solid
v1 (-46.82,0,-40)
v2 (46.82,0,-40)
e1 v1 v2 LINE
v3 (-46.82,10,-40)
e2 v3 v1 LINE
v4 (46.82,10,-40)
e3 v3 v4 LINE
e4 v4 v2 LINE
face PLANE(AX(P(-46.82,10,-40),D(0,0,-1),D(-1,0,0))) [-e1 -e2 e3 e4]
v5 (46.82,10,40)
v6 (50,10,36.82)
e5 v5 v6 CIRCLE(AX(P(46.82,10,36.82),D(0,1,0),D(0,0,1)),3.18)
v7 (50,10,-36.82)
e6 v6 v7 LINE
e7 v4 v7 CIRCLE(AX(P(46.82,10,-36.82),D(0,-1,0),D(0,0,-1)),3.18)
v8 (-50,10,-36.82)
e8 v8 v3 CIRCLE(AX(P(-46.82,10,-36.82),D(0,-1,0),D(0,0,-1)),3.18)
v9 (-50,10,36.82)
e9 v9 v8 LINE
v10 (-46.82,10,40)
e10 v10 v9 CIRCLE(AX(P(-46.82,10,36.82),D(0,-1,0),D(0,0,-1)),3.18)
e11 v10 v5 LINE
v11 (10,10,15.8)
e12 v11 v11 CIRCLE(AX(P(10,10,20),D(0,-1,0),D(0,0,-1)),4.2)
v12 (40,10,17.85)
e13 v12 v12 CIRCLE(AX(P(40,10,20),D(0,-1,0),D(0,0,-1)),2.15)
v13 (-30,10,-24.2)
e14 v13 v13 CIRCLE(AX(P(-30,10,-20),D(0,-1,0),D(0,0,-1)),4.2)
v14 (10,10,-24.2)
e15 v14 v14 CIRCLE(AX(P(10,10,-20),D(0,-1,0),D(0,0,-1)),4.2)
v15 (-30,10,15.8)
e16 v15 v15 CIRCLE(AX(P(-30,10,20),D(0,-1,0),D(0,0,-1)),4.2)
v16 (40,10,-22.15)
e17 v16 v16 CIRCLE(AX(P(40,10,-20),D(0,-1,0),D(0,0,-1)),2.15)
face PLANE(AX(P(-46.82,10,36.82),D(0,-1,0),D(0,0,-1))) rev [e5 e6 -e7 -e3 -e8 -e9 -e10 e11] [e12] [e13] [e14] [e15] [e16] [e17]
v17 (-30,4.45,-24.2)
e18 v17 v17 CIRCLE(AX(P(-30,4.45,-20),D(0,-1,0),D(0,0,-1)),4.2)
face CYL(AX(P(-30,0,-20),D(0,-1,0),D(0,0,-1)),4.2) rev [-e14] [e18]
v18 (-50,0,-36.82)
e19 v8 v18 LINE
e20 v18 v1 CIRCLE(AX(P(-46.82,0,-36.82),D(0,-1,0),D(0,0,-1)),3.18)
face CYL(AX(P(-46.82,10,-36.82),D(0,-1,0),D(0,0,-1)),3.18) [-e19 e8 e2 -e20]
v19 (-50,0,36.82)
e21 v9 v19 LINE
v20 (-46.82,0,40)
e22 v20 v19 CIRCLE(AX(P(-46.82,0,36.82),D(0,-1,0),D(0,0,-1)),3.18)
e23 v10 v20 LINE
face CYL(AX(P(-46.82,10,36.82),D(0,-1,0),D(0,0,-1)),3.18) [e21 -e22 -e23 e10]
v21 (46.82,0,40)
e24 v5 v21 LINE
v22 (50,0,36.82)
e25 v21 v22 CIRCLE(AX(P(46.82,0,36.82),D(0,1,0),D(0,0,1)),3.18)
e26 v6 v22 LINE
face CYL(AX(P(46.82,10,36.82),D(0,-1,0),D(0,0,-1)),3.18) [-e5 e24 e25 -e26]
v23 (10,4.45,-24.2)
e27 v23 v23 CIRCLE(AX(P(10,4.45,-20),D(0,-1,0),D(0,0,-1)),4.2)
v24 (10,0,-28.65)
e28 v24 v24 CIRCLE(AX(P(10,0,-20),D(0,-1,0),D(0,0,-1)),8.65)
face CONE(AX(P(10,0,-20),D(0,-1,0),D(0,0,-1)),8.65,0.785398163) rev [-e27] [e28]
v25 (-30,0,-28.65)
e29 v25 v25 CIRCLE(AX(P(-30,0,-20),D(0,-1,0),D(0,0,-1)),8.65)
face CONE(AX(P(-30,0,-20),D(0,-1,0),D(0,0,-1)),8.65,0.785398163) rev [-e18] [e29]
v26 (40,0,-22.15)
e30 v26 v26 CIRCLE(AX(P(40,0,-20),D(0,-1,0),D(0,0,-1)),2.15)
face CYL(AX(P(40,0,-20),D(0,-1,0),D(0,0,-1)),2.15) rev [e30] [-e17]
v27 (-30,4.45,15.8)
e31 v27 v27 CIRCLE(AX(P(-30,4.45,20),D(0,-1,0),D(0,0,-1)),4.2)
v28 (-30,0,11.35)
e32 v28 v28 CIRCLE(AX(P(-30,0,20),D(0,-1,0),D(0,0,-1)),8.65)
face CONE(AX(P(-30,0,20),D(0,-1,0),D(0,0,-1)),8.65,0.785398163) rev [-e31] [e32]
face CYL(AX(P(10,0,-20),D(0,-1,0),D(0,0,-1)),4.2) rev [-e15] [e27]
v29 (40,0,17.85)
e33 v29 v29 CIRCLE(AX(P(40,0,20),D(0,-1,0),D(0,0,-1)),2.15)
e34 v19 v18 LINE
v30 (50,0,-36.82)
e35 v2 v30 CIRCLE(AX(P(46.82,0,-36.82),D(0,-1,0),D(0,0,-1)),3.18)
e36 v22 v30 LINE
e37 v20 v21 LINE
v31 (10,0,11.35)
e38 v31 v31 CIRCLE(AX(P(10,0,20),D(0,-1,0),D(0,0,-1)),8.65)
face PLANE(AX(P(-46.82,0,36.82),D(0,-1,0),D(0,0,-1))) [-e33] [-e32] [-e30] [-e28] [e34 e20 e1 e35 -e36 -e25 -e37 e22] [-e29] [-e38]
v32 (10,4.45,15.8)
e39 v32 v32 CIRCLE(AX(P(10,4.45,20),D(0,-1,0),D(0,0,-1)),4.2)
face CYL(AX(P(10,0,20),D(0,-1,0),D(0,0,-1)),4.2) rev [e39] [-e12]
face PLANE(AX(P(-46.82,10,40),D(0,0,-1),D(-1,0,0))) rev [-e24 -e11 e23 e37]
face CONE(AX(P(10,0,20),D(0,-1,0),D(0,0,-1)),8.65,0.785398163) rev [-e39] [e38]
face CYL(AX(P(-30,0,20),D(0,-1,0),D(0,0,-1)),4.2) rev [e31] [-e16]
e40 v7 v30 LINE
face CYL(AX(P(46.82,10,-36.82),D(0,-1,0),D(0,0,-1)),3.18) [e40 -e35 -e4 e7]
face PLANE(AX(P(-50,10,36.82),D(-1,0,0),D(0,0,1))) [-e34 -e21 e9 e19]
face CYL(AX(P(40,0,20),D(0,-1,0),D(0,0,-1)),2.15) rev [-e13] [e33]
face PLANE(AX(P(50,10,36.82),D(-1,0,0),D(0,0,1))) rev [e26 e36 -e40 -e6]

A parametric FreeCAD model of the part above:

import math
import FreeCAD as App
import Part
import Sketcher

V = App.Vector

doc = App.newDocument("Part")
params = doc.addObject("Spreadsheet::Sheet", "Params")
for row, (alias, value) in enumerate([
    ("sketch1_radius", "3.18 mm"),
    ("pad1_length", "10 mm"),
    ("sketch2_diameter", "8.4 mm"),
    ("hole_diameter", "8.4 mm"),
    ("hole_csink_diameter", "17.3 mm"),
    ("sketch3_diameter", "4.3 mm"),
    ("hole2_diameter", "4.3 mm"),
], start=1):
    params.set(f"A{row}", alias)
    params.set(f"B{row}", "=" + value)
    params.setAlias(f"B{row}", alias)

body = doc.addObject("PartDesign::Body", "Body")

# Sketch on XZ plane
sketch1 = body.newObject("Sketcher::SketchObject", "Sketch")
sketch1.AttachmentSupport = (doc.getObject("XZ_Plane"), [""])
sketch1.MapMode = "FlatFace"
sketch1.addGeometry([
    Part.LineSegment(V(-46.8, 40, 0), V(46.8, 40, 0)),  # 0
    Part.ArcOfCircle(Part.Circle(V(46.8, 36.8, 0), V(0, 0, 1), 3.2), math.radians(0), math.radians(90)),  # 1
    Part.LineSegment(V(50, 36.8, 0), V(50, -36.8, 0)),  # 2
    Part.ArcOfCircle(Part.Circle(V(46.8, -36.8, 0), V(0, 0, 1), 3.2), math.radians(-90), math.radians(0)),  # 3
    Part.LineSegment(V(46.8, -40, 0), V(-46.8, -40, 0)),  # 4
    Part.ArcOfCircle(Part.Circle(V(-46.8, -36.8, 0), V(0, 0, 1), 3.2), math.radians(-180), math.radians(-90)),  # 5
    Part.LineSegment(V(-50, -36.8, 0), V(-50, 36.8, 0)),  # 6
    Part.ArcOfCircle(Part.Circle(V(-46.8, 36.8, 0), V(0, 0, 1), 3.2), math.radians(90), math.radians(180)),  # 7
], False)
sketch1.addConstraint([
    Sketcher.Constraint("Tangent", 0, 2, 1, 2),
    Sketcher.Constraint("Tangent", 1, 1, 2, 1),
    Sketcher.Constraint("Tangent", 2, 2, 3, 2),
    Sketcher.Constraint("Tangent", 3, 1, 4, 1),
    Sketcher.Constraint("Tangent", 4, 2, 5, 2),
    Sketcher.Constraint("Tangent", 5, 1, 6, 1),
    Sketcher.Constraint("Tangent", 6, 2, 7, 2),
    Sketcher.Constraint("Tangent", 7, 1, 0, 1),
    Sketcher.Constraint("Horizontal", 0),
    Sketcher.Constraint("Vertical", 2),
    Sketcher.Constraint("Horizontal", 4),
    Sketcher.Constraint("Vertical", 6),
    Sketcher.Constraint("Equal", 1, 3),
    Sketcher.Constraint("Equal", 3, 5),
    Sketcher.Constraint("Equal", 5, 7),
    Sketcher.Constraint("Symmetric", 1, 3, 5, 3, -1, 1),
    Sketcher.Constraint("Radius", 1, 3.18),
    Sketcher.Constraint("DistanceY", -1, 1, 0, 2, 40.0),
    Sketcher.Constraint("DistanceX", -1, 1, 1, 1, 50.0),
])
sketch1.setExpression("Constraints[16]", "Params.sketch1_radius")
pad1 = body.newObject("PartDesign::Pad", "Pad")
pad1.Profile = sketch1
pad1.setExpression("Length", "Params.pad1_length")
pad1.Reversed = True

# Sketch on XZ plane
sketch2 = body.newObject("Sketcher::SketchObject", "Sketch001")
sketch2.AttachmentSupport = (doc.getObject("XZ_Plane"), [""])
sketch2.MapMode = "FlatFace"
sketch2.addGeometry([
    Part.Circle(V(10, -20, 0), V(0, 0, 1), 4.2),
    Part.Circle(V(-30, -20, 0), V(0, 0, 1), 4.2),
    Part.Circle(V(-30, 20, 0), V(0, 0, 1), 4.2),
    Part.Circle(V(10, 20, 0), V(0, 0, 1), 4.2),
], False)
sketch2.addConstraint([
    Sketcher.Constraint("Equal", 0, 1),
    Sketcher.Constraint("Equal", 1, 2),
    Sketcher.Constraint("Equal", 2, 3),
    Sketcher.Constraint("Symmetric", 1, 3, 2, 3, -1),
    Sketcher.Constraint("Symmetric", 0, 3, 3, 3, -1),
    Sketcher.Constraint("Horizontal", 0, 3, 1, 3),
    Sketcher.Constraint("Diameter", 0, 8.4),
    Sketcher.Constraint("DistanceX", -1, 1, 0, 3, 10.0),
    Sketcher.Constraint("DistanceY", 0, 3, -1, 1, 20.0),
    Sketcher.Constraint("DistanceX", 1, 3, -1, 1, 30.0),
])
sketch2.setExpression("Constraints[6]", "Params.sketch2_diameter")
doc.recompute()
hole = body.newObject("PartDesign::Hole", "Hole")
hole.Profile = sketch2
hole.ThreadType = "None"
hole.setExpression("Diameter", "Params.hole_diameter")
hole.DepthType = "ThroughAll"
hole.HoleCutType = "Countersink"
hole.setExpression("HoleCutDiameter", "Params.hole_csink_diameter")
hole.HoleCutCountersinkAngle = 90

# Sketch on XZ plane
sketch3 = body.newObject("Sketcher::SketchObject", "Sketch002")
sketch3.AttachmentSupport = (doc.getObject("XZ_Plane"), [""])
sketch3.MapMode = "FlatFace"
sketch3.addGeometry([
    Part.Circle(V(40, -20, 0), V(0, 0, 1), 2.1),
    Part.Circle(V(40, 20, 0), V(0, 0, 1), 2.1),
], False)
sketch3.addConstraint([
    Sketcher.Constraint("Equal", 0, 1),
    Sketcher.Constraint("Symmetric", 0, 3, 1, 3, -1),
    Sketcher.Constraint("Diameter", 0, 4.3),
    Sketcher.Constraint("DistanceX", -1, 1, 0, 3, 40.0),
    Sketcher.Constraint("DistanceY", 0, 3, -1, 1, 20.0),
])
sketch3.setExpression("Constraints[2]", "Params.sketch3_diameter")
doc.recompute()
hole2 = body.newObject("PartDesign::Hole", "Hole001")
hole2.Profile = sketch3
hole2.ThreadType = "None"
hole2.setExpression("Diameter", "Params.hole2_diameter")
hole2.DepthType = "ThroughAll"

doc.recompute()
